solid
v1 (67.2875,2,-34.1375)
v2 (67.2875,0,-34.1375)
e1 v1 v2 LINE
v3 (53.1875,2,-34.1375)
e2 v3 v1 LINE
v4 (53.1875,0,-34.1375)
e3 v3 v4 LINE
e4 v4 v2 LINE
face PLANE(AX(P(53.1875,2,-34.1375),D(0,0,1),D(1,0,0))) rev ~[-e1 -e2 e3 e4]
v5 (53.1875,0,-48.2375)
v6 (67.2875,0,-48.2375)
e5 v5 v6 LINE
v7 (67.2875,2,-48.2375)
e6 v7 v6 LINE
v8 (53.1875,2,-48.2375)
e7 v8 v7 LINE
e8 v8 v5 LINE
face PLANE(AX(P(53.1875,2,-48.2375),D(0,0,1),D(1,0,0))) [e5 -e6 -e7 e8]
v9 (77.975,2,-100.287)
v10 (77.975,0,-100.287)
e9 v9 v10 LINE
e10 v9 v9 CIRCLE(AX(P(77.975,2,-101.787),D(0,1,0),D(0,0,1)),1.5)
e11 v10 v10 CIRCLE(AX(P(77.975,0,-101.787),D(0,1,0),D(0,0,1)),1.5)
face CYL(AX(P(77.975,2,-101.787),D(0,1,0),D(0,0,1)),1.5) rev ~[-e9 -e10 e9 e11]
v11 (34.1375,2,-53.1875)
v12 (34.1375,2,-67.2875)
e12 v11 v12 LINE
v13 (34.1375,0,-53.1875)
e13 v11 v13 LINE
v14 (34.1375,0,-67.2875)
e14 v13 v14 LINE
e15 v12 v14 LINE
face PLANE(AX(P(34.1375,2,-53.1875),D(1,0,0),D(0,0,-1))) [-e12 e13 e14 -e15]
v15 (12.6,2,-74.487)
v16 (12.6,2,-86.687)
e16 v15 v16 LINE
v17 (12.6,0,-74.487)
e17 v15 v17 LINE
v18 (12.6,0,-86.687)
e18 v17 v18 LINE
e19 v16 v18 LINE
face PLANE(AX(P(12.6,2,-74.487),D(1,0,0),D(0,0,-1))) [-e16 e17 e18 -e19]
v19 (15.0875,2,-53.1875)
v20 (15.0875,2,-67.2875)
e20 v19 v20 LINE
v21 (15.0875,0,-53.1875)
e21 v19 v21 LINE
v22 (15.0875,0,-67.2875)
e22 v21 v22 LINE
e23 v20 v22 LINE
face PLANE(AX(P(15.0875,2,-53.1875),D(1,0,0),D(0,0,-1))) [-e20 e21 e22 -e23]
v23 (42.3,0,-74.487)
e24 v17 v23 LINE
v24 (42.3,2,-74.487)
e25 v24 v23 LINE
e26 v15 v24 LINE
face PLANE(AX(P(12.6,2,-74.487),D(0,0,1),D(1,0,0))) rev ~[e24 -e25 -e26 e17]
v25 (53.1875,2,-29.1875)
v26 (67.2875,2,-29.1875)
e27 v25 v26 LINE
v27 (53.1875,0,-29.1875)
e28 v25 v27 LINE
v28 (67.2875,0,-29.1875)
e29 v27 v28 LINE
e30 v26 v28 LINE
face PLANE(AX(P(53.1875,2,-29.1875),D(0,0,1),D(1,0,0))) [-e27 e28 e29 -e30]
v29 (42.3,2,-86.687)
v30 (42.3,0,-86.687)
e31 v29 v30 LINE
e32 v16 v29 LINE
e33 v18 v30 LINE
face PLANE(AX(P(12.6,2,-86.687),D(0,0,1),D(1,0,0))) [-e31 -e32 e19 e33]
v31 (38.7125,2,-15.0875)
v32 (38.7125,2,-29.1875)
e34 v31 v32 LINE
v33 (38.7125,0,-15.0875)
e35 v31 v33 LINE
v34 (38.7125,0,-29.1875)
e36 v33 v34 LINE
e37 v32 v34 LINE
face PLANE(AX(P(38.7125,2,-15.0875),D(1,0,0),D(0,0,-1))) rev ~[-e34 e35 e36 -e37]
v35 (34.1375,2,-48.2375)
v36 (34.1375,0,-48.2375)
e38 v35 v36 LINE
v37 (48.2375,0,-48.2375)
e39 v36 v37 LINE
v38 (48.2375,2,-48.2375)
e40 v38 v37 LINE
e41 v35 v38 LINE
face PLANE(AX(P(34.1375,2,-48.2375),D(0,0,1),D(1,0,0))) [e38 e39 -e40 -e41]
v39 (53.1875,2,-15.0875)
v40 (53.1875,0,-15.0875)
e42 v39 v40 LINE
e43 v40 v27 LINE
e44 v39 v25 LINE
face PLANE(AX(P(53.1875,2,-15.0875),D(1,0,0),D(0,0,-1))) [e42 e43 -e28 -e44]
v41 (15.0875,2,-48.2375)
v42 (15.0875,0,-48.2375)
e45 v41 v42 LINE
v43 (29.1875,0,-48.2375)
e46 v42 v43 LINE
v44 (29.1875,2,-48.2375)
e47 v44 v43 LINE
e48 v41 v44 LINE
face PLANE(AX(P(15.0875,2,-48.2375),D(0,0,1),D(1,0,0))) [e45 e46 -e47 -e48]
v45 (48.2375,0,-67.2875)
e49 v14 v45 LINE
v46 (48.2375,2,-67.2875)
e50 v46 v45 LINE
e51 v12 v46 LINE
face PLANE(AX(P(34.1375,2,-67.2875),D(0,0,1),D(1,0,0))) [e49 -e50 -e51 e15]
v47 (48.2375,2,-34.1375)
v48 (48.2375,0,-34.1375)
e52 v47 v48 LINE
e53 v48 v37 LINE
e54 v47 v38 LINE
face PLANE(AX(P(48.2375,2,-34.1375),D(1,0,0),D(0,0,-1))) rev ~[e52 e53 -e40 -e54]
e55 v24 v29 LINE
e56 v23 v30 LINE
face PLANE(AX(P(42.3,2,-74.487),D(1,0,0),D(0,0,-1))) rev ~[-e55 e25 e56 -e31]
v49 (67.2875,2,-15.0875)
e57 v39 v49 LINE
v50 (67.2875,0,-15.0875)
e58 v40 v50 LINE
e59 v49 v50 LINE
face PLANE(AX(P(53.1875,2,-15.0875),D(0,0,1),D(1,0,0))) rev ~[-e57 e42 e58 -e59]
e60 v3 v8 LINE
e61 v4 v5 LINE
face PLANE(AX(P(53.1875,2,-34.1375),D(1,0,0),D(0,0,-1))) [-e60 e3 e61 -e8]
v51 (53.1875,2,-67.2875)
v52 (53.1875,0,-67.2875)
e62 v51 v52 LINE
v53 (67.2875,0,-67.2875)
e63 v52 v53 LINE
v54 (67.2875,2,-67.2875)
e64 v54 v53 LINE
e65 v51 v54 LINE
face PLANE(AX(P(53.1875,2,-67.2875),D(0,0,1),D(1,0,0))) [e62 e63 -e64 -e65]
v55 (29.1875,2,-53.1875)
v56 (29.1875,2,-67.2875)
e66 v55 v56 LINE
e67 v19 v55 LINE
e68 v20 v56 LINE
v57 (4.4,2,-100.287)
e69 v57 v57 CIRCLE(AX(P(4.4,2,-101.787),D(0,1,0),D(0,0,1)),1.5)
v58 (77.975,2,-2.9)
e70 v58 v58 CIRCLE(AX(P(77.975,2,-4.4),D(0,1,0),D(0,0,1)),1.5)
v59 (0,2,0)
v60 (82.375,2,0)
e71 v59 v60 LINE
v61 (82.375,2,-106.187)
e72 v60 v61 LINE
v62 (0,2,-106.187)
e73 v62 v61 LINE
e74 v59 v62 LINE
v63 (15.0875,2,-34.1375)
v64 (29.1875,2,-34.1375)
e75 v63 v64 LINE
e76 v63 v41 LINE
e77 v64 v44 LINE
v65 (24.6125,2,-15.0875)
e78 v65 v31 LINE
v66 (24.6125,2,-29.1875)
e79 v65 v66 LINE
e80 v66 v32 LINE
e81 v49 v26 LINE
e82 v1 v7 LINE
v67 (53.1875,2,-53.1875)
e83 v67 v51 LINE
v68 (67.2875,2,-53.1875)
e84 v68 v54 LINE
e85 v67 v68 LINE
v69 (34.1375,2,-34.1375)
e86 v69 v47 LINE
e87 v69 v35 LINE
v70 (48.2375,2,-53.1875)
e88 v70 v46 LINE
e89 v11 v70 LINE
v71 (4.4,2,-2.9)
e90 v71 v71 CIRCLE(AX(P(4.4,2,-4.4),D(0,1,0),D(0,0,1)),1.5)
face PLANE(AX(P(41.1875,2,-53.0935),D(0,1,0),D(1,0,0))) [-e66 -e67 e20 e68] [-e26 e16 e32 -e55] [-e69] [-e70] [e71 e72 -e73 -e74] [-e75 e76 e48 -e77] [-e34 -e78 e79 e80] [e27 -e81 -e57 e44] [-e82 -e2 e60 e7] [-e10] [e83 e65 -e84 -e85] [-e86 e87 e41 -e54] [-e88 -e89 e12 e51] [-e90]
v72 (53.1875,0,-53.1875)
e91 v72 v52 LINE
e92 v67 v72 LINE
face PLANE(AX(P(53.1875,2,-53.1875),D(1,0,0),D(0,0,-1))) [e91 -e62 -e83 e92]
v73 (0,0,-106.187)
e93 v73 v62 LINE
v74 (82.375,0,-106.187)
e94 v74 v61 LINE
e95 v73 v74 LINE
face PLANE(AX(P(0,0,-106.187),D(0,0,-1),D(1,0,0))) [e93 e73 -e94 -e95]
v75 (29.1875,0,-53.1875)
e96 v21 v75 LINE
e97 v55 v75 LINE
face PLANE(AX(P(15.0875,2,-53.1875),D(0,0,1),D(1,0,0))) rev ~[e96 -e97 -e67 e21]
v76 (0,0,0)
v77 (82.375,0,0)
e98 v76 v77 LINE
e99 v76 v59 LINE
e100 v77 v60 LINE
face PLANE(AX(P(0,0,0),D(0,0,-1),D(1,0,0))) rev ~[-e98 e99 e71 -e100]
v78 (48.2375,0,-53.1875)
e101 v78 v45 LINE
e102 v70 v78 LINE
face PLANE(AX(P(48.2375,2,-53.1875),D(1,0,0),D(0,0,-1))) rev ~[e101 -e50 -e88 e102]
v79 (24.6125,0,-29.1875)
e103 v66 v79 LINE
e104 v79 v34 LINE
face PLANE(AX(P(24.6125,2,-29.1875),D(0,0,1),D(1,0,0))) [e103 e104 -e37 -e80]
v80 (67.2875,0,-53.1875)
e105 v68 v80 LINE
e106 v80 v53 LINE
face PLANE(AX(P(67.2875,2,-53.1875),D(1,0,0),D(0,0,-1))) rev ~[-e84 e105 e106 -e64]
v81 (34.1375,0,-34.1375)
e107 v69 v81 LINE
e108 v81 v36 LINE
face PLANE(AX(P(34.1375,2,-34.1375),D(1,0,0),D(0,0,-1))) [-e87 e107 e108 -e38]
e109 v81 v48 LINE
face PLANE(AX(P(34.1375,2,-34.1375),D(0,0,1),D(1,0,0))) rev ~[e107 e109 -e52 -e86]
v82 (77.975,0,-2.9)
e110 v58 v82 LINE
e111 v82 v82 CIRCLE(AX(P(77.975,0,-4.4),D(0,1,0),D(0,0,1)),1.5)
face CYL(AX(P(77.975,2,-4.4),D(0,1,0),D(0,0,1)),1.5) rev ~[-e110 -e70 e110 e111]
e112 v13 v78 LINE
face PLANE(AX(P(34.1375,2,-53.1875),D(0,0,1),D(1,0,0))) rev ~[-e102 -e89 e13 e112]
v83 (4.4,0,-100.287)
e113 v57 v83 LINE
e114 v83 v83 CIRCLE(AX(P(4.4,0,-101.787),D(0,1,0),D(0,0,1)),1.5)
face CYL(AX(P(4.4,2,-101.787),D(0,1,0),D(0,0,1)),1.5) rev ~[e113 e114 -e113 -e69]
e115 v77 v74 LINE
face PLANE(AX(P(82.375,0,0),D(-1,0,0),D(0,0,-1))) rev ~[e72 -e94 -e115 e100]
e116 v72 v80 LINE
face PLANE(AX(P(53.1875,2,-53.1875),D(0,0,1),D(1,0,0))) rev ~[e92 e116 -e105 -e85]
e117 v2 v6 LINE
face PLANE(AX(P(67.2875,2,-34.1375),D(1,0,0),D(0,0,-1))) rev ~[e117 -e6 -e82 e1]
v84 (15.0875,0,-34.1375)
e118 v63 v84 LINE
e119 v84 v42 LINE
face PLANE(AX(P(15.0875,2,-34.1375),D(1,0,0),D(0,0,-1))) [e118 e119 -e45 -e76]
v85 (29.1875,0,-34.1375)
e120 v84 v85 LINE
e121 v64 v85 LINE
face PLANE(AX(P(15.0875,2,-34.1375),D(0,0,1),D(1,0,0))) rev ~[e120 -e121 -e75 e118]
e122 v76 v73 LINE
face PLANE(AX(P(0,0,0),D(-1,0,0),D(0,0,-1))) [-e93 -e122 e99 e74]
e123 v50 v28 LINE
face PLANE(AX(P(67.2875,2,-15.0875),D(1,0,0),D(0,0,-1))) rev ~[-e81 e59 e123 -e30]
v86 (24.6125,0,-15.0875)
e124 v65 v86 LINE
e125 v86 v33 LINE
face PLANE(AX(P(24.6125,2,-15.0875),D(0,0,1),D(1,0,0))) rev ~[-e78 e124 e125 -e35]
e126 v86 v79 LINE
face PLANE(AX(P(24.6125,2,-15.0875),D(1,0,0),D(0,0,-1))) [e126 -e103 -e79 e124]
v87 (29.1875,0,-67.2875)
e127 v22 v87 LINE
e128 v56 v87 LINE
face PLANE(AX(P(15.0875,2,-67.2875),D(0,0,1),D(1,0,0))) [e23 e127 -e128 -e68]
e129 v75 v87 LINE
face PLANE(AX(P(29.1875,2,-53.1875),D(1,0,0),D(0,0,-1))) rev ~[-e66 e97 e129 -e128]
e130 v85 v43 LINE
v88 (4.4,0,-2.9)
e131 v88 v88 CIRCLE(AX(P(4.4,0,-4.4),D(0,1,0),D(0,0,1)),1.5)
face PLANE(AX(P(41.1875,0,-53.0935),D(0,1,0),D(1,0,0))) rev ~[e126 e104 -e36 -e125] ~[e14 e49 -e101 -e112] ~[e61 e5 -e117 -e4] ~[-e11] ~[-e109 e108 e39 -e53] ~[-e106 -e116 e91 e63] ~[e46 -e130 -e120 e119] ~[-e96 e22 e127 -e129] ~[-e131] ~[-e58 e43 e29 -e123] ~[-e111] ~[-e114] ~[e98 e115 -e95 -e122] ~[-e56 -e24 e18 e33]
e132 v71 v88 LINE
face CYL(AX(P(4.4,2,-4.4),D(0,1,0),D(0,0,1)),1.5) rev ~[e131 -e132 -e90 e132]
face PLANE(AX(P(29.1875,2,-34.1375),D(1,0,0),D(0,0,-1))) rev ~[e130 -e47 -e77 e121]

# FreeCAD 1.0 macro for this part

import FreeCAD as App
import Part
import Sketcher
from FreeCAD import Vector

doc = App.newDocument("Part")
params = doc.addObject("Spreadsheet::Sheet", "Params")
for row, (alias, value) in enumerate([
    ("pad1_length", "2 mm"),
    ("sketch2_diameter", "3 mm"),
    ("sketch2_width", "14.1 mm"),
    ("sketch2_width2", "29.7 mm"),
    ("sketch2_height", "12.2 mm"),
], start=1):
    params.set(f"A{row}", alias)
    params.set(f"B{row}", "=" + value)
    params.setAlias(f"B{row}", alias)

body = doc.addObject("PartDesign::Body", "Body")

# Sketch on XZ plane
sketch1 = body.newObject("Sketcher::SketchObject", "Sketch")
sketch1.AttachmentSupport = (doc.getObject("XZ_Plane"), [""])
sketch1.MapMode = "FlatFace"
sketch1.addGeometry([
    Part.LineSegment(Vector(0, -106, 0), Vector(0, 0, 0)),
    Part.LineSegment(Vector(0, 0, 0), Vector(82, 0, 0)),
    Part.LineSegment(Vector(82, 0, 0), Vector(82, -106, 0)),
    Part.LineSegment(Vector(82, -106, 0), Vector(0, -106, 0)),
], False)
sketch1.addConstraint([
    Sketcher.Constraint("Coincident", 0, 2, 1, 1),
    Sketcher.Constraint("Coincident", 1, 2, 2, 1),
    Sketcher.Constraint("Coincident", 2, 2, 3, 1),
    Sketcher.Constraint("Coincident", 3, 2, 0, 1),
    Sketcher.Constraint("Vertical", 0),
    Sketcher.Constraint("Horizontal", 1),
    Sketcher.Constraint("Vertical", 2),
    Sketcher.Constraint("Horizontal", 3),
    Sketcher.Constraint("Coincident", 0, 2, -1, 1),
    Sketcher.Constraint("DistanceX", 1, 1, 1, 2, 82.375),
    Sketcher.Constraint("DistanceY", 0, 1, 0, 2, 106.187),
])
pad1 = body.newObject("PartDesign::Pad", "Pad")
pad1.Profile = sketch1
pad1.setExpression("Length", "Params.pad1_length")
pad1.Reversed = True

# Sketch on XZ plane
sketch2 = body.newObject("Sketcher::SketchObject", "Sketch001")
sketch2.AttachmentSupport = (doc.getObject("XZ_Plane"), [""])
sketch2.MapMode = "FlatFace"
sketch2.AttachmentOffset = App.Placement(Vector(0, 0, -2), App.Rotation())
sketch2.addGeometry([
    Part.Circle(Vector(4.4, -101.8, 0), Vector(0, 0, 1), 1.5),  # 0
    Part.Circle(Vector(78, -101.8, 0), Vector(0, 0, 1), 1.5),  # 1
    Part.Circle(Vector(78, -4.4, 0), Vector(0, 0, 1), 1.5),  # 2
    Part.Circle(Vector(4.4, -4.4, 0), Vector(0, 0, 1), 1.5),  # 3
    Part.LineSegment(Vector(15.1, -67.3, 0), Vector(15.1, -53.2, 0)),  # 4
    Part.LineSegment(Vector(15.1, -53.2, 0), Vector(29.2, -53.2, 0)),  # 5
    Part.LineSegment(Vector(29.2, -53.2, 0), Vector(29.2, -67.3, 0)),  # 6
    Part.LineSegment(Vector(29.2, -67.3, 0), Vector(15.1, -67.3, 0)),  # 7
    Part.LineSegment(Vector(12.6, -86.7, 0), Vector(12.6, -74.5, 0)),  # 8
    Part.LineSegment(Vector(12.6, -74.5, 0), Vector(42.3, -74.5, 0)),  # 9
    Part.LineSegment(Vector(42.3, -74.5, 0), Vector(42.3, -86.7, 0)),  # 10
    Part.LineSegment(Vector(42.3, -86.7, 0), Vector(12.6, -86.7, 0)),  # 11
    Part.LineSegment(Vector(34.1, -67.3, 0), Vector(34.1, -53.2, 0)),  # 12
    Part.LineSegment(Vector(34.1, -53.2, 0), Vector(48.2, -53.2, 0)),  # 13
    Part.LineSegment(Vector(48.2, -53.2, 0), Vector(48.2, -67.3, 0)),  # 14
    Part.LineSegment(Vector(48.2, -67.3, 0), Vector(34.1, -67.3, 0)),  # 15
    Part.LineSegment(Vector(53.2, -67.3, 0), Vector(53.2, -53.2, 0)),  # 16
    Part.LineSegment(Vector(53.2, -53.2, 0), Vector(67.3, -53.2, 0)),  # 17
    Part.LineSegment(Vector(67.3, -53.2, 0), Vector(67.3, -67.3, 0)),  # 18
    Part.LineSegment(Vector(67.3, -67.3, 0), Vector(53.2, -67.3, 0)),  # 19
    Part.LineSegment(Vector(15.1, -48.2, 0), Vector(15.1, -34.1, 0)),  # 20
    Part.LineSegment(Vector(15.1, -34.1, 0), Vector(29.2, -34.1, 0)),  # 21
    Part.LineSegment(Vector(29.2, -34.1, 0), Vector(29.2, -48.2, 0)),  # 22
    Part.LineSegment(Vector(29.2, -48.2, 0), Vector(15.1, -48.2, 0)),  # 23
    Part.LineSegment(Vector(34.1, -48.2, 0), Vector(34.1, -34.1, 0)),  # 24
    Part.LineSegment(Vector(34.1, -34.1, 0), Vector(48.2, -34.1, 0)),  # 25
    Part.LineSegment(Vector(48.2, -34.1, 0), Vector(48.2, -48.2, 0)),  # 26
    Part.LineSegment(Vector(48.2, -48.2, 0), Vector(34.1, -48.2, 0)),  # 27
    Part.LineSegment(Vector(53.2, -48.2, 0), Vector(53.2, -34.1, 0)),  # 28
    Part.LineSegment(Vector(53.2, -34.1, 0), Vector(67.3, -34.1, 0)),  # 29
    Part.LineSegment(Vector(67.3, -34.1, 0), Vector(67.3, -48.2, 0)),  # 30
    Part.LineSegment(Vector(67.3, -48.2, 0), Vector(53.2, -48.2, 0)),  # 31
    Part.LineSegment(Vector(24.6, -29.2, 0), Vector(24.6, -15.1, 0)),  # 32
    Part.LineSegment(Vector(24.6, -15.1, 0), Vector(38.7, -15.1, 0)),  # 33
    Part.LineSegment(Vector(38.7, -15.1, 0), Vector(38.7, -29.2, 0)),  # 34
    Part.LineSegment(Vector(38.7, -29.2, 0), Vector(24.6, -29.2, 0)),  # 35
    Part.LineSegment(Vector(53.2, -29.2, 0), Vector(53.2, -15.1, 0)),  # 36
    Part.LineSegment(Vector(53.2, -15.1, 0), Vector(67.3, -15.1, 0)),  # 37
    Part.LineSegment(Vector(67.3, -15.1, 0), Vector(67.3, -29.2, 0)),  # 38
    Part.LineSegment(Vector(67.3, -29.2, 0), Vector(53.2, -29.2, 0)),  # 39
], False)
sketch2.addConstraint([
    Sketcher.Constraint("Coincident", 4, 2, 5, 1),
    Sketcher.Constraint("Coincident", 5, 2, 6, 1),
    Sketcher.Constraint("Coincident", 6, 2, 7, 1),
    Sketcher.Constraint("Coincident", 7, 2, 4, 1),
    Sketcher.Constraint("Coincident", 8, 2, 9, 1),
    Sketcher.Constraint("Coincident", 9, 2, 10, 1),
    Sketcher.Constraint("Coincident", 10, 2, 11, 1),
    Sketcher.Constraint("Coincident", 11, 2, 8, 1),
    Sketcher.Constraint("Coincident", 12, 2, 13, 1),
    Sketcher.Constraint("Coincident", 13, 2, 14, 1),
    Sketcher.Constraint("Coincident", 14, 2, 15, 1),
    Sketcher.Constraint("Coincident", 15, 2, 12, 1),
    Sketcher.Constraint("Coincident", 16, 2, 17, 1),
    Sketcher.Constraint("Coincident", 17, 2, 18, 1),
    Sketcher.Constraint("Coincident", 18, 2, 19, 1),
    Sketcher.Constraint("Coincident", 19, 2, 16, 1),
    Sketcher.Constraint("Coincident", 20, 2, 21, 1),
    Sketcher.Constraint("Coincident", 21, 2, 22, 1),
    Sketcher.Constraint("Coincident", 22, 2, 23, 1),
    Sketcher.Constraint("Coincident", 23, 2, 20, 1),
    Sketcher.Constraint("Coincident", 24, 2, 25, 1),
    Sketcher.Constraint("Coincident", 25, 2, 26, 1),
    Sketcher.Constraint("Coincident", 26, 2, 27, 1),
    Sketcher.Constraint("Coincident", 27, 2, 24, 1),
    Sketcher.Constraint("Coincident", 28, 2, 29, 1),
    Sketcher.Constraint("Coincident", 29, 2, 30, 1),
    Sketcher.Constraint("Coincident", 30, 2, 31, 1),
    Sketcher.Constraint("Coincident", 31, 2, 28, 1),
    Sketcher.Constraint("Coincident", 32, 2, 33, 1),
    Sketcher.Constraint("Coincident", 33, 2, 34, 1),
    Sketcher.Constraint("Coincident", 34, 2, 35, 1),
    Sketcher.Constraint("Coincident", 35, 2, 32, 1),
    Sketcher.Constraint("Coincident", 36, 2, 37, 1),
    Sketcher.Constraint("Coincident", 37, 2, 38, 1),
    Sketcher.Constraint("Coincident", 38, 2, 39, 1),
    Sketcher.Constraint("Coincident", 39, 2, 36, 1),
    Sketcher.Constraint("Vertical", 4),
    Sketcher.Constraint("Horizontal", 5),
    Sketcher.Constraint("Vertical", 6),
    Sketcher.Constraint("Horizontal", 7),
    Sketcher.Constraint("Vertical", 8),
    Sketcher.Constraint("Horizontal", 9),
    Sketcher.Constraint("Vertical", 10),
    Sketcher.Constraint("Horizontal", 11),
    Sketcher.Constraint("Vertical", 12),
    Sketcher.Constraint("Horizontal", 13),
    Sketcher.Constraint("Vertical", 14),
    Sketcher.Constraint("Horizontal", 15),
    Sketcher.Constraint("Vertical", 16),
    Sketcher.Constraint("Horizontal", 17),
    Sketcher.Constraint("Vertical", 18),
    Sketcher.Constraint("Horizontal", 19),
    Sketcher.Constraint("Vertical", 20),
    Sketcher.Constraint("Horizontal", 21),
    Sketcher.Constraint("Vertical", 22),
    Sketcher.Constraint("Horizontal", 23),
    Sketcher.Constraint("Vertical", 24),
    Sketcher.Constraint("Horizontal", 25),
    Sketcher.Constraint("Vertical", 26),
    Sketcher.Constraint("Horizontal", 27),
    Sketcher.Constraint("Vertical", 28),
    Sketcher.Constraint("Horizontal", 29),
    Sketcher.Constraint("Vertical", 30),
    Sketcher.Constraint("Horizontal", 31),
    Sketcher.Constraint("Vertical", 32),
    Sketcher.Constraint("Horizontal", 33),
    Sketcher.Constraint("Vertical", 34),
    Sketcher.Constraint("Horizontal", 35),
    Sketcher.Constraint("Vertical", 36),
    Sketcher.Constraint("Horizontal", 37),
    Sketcher.Constraint("Vertical", 38),
    Sketcher.Constraint("Horizontal", 39),
    Sketcher.Constraint("Equal", 0, 1),
    Sketcher.Constraint("Equal", 1, 2),
    Sketcher.Constraint("Equal", 2, 3),
    Sketcher.Constraint("Horizontal", 0, 3, 1, 3),
    Sketcher.Constraint("Horizontal", 2, 3, 3, 3),
    Sketcher.Constraint("Horizontal", 5, 2, 12, 2),
    Sketcher.Constraint("Horizontal", 7, 2, 14, 2),
    Sketcher.Constraint("Horizontal", 13, 2, 16, 2),
    Sketcher.Constraint("Horizontal", 15, 2, 18, 2),
    Sketcher.Constraint("Horizontal", 21, 2, 24, 2),
    Sketcher.Constraint("Horizontal", 23, 2, 26, 2),
    Sketcher.Constraint("Horizontal", 25, 2, 28, 2),
    Sketcher.Constraint("Horizontal", 27, 2, 30, 2),
    Sketcher.Constraint("Horizontal", 33, 2, 36, 2),
    Sketcher.Constraint("Horizontal", 35, 2, 38, 2),
    Sketcher.Constraint("Vertical", 1, 3, 2, 3),
    Sketcher.Constraint("Vertical", 0, 3, 3, 3),
    Sketcher.Constraint("Vertical", 7, 2, 20, 2),
    Sketcher.Constraint("Vertical", 6, 2, 21, 2),
    Sketcher.Constraint("Vertical", 15, 2, 24, 2),
    Sketcher.Constraint("Vertical", 14, 2, 25, 2),
    Sketcher.Constraint("Vertical", 19, 2, 28, 2),
    Sketcher.Constraint("Vertical", 18, 2, 29, 2),
    Sketcher.Constraint("Vertical", 31, 2, 36, 2),
    Sketcher.Constraint("Vertical", 30, 2, 37, 2),
    Sketcher.Constraint("Equal", 7, 13),
    Sketcher.Constraint("Equal", 15, 17),
    Sketcher.Constraint("Equal", 31, 33),
    Sketcher.Constraint("Equal", 39, 4),
    Sketcher.Constraint("Equal", 18, 20),
    Sketcher.Constraint("Equal", 30, 32),
    Sketcher.Constraint("Diameter", 0, 3.0),
    Sketcher.Constraint("DistanceX", 5, 1, 5, 2, 14.1),
    Sketcher.Constraint("DistanceX", 9, 1, 9, 2, 29.7),
    Sketcher.Constraint("DistanceY", 8, 1, 8, 2, 12.2),
    Sketcher.Constraint("DistanceX", -1, 1, 0, 3, 4.4),
    Sketcher.Constraint("DistanceY", 2, 3, -1, 1, 4.4),
    Sketcher.Constraint("DistanceX", -1, 1, 8, 2, 12.6),
    Sketcher.Constraint("DistanceY", 0, 3, 8, 2, 27.3),
    Sketcher.Constraint("DistanceX", 5, 2, 12, 2, 4.95),
    Sketcher.Constraint("DistanceX", 13, 2, 16, 2, 4.95),
    Sketcher.Constraint("DistanceY", 4, 2, 20, 2, 19.05),
    Sketcher.Constraint("DistanceY", 21, 2, 32, 2, 19.05),
    Sketcher.Constraint("DistanceY", 0, 3, -1, 1, 101.787),
    Sketcher.Constraint("DistanceX", -1, 1, 1, 3, 77.975),
    Sketcher.Constraint("DistanceX", 32, 2, 21, 2, 4.575),
    Sketcher.Constraint("DistanceX", -1, 1, 4, 2, 15.0875),
    Sketcher.Constraint("DistanceY", 4, 2, -1, 1, 53.1875),
])
sketch2.setExpression("Constraints[103]", "Params.sketch2_diameter")
sketch2.setExpression("Constraints[104]", "Params.sketch2_width")
sketch2.setExpression("Constraints[105]", "Params.sketch2_width2")
sketch2.setExpression("Constraints[106]", "Params.sketch2_height")
pocket1 = body.newObject("PartDesign::Pocket", "Pocket")
pocket1.Profile = sketch2
pocket1.Type = "ThroughAll"
pocket1.Reversed = True

doc.recompute()
